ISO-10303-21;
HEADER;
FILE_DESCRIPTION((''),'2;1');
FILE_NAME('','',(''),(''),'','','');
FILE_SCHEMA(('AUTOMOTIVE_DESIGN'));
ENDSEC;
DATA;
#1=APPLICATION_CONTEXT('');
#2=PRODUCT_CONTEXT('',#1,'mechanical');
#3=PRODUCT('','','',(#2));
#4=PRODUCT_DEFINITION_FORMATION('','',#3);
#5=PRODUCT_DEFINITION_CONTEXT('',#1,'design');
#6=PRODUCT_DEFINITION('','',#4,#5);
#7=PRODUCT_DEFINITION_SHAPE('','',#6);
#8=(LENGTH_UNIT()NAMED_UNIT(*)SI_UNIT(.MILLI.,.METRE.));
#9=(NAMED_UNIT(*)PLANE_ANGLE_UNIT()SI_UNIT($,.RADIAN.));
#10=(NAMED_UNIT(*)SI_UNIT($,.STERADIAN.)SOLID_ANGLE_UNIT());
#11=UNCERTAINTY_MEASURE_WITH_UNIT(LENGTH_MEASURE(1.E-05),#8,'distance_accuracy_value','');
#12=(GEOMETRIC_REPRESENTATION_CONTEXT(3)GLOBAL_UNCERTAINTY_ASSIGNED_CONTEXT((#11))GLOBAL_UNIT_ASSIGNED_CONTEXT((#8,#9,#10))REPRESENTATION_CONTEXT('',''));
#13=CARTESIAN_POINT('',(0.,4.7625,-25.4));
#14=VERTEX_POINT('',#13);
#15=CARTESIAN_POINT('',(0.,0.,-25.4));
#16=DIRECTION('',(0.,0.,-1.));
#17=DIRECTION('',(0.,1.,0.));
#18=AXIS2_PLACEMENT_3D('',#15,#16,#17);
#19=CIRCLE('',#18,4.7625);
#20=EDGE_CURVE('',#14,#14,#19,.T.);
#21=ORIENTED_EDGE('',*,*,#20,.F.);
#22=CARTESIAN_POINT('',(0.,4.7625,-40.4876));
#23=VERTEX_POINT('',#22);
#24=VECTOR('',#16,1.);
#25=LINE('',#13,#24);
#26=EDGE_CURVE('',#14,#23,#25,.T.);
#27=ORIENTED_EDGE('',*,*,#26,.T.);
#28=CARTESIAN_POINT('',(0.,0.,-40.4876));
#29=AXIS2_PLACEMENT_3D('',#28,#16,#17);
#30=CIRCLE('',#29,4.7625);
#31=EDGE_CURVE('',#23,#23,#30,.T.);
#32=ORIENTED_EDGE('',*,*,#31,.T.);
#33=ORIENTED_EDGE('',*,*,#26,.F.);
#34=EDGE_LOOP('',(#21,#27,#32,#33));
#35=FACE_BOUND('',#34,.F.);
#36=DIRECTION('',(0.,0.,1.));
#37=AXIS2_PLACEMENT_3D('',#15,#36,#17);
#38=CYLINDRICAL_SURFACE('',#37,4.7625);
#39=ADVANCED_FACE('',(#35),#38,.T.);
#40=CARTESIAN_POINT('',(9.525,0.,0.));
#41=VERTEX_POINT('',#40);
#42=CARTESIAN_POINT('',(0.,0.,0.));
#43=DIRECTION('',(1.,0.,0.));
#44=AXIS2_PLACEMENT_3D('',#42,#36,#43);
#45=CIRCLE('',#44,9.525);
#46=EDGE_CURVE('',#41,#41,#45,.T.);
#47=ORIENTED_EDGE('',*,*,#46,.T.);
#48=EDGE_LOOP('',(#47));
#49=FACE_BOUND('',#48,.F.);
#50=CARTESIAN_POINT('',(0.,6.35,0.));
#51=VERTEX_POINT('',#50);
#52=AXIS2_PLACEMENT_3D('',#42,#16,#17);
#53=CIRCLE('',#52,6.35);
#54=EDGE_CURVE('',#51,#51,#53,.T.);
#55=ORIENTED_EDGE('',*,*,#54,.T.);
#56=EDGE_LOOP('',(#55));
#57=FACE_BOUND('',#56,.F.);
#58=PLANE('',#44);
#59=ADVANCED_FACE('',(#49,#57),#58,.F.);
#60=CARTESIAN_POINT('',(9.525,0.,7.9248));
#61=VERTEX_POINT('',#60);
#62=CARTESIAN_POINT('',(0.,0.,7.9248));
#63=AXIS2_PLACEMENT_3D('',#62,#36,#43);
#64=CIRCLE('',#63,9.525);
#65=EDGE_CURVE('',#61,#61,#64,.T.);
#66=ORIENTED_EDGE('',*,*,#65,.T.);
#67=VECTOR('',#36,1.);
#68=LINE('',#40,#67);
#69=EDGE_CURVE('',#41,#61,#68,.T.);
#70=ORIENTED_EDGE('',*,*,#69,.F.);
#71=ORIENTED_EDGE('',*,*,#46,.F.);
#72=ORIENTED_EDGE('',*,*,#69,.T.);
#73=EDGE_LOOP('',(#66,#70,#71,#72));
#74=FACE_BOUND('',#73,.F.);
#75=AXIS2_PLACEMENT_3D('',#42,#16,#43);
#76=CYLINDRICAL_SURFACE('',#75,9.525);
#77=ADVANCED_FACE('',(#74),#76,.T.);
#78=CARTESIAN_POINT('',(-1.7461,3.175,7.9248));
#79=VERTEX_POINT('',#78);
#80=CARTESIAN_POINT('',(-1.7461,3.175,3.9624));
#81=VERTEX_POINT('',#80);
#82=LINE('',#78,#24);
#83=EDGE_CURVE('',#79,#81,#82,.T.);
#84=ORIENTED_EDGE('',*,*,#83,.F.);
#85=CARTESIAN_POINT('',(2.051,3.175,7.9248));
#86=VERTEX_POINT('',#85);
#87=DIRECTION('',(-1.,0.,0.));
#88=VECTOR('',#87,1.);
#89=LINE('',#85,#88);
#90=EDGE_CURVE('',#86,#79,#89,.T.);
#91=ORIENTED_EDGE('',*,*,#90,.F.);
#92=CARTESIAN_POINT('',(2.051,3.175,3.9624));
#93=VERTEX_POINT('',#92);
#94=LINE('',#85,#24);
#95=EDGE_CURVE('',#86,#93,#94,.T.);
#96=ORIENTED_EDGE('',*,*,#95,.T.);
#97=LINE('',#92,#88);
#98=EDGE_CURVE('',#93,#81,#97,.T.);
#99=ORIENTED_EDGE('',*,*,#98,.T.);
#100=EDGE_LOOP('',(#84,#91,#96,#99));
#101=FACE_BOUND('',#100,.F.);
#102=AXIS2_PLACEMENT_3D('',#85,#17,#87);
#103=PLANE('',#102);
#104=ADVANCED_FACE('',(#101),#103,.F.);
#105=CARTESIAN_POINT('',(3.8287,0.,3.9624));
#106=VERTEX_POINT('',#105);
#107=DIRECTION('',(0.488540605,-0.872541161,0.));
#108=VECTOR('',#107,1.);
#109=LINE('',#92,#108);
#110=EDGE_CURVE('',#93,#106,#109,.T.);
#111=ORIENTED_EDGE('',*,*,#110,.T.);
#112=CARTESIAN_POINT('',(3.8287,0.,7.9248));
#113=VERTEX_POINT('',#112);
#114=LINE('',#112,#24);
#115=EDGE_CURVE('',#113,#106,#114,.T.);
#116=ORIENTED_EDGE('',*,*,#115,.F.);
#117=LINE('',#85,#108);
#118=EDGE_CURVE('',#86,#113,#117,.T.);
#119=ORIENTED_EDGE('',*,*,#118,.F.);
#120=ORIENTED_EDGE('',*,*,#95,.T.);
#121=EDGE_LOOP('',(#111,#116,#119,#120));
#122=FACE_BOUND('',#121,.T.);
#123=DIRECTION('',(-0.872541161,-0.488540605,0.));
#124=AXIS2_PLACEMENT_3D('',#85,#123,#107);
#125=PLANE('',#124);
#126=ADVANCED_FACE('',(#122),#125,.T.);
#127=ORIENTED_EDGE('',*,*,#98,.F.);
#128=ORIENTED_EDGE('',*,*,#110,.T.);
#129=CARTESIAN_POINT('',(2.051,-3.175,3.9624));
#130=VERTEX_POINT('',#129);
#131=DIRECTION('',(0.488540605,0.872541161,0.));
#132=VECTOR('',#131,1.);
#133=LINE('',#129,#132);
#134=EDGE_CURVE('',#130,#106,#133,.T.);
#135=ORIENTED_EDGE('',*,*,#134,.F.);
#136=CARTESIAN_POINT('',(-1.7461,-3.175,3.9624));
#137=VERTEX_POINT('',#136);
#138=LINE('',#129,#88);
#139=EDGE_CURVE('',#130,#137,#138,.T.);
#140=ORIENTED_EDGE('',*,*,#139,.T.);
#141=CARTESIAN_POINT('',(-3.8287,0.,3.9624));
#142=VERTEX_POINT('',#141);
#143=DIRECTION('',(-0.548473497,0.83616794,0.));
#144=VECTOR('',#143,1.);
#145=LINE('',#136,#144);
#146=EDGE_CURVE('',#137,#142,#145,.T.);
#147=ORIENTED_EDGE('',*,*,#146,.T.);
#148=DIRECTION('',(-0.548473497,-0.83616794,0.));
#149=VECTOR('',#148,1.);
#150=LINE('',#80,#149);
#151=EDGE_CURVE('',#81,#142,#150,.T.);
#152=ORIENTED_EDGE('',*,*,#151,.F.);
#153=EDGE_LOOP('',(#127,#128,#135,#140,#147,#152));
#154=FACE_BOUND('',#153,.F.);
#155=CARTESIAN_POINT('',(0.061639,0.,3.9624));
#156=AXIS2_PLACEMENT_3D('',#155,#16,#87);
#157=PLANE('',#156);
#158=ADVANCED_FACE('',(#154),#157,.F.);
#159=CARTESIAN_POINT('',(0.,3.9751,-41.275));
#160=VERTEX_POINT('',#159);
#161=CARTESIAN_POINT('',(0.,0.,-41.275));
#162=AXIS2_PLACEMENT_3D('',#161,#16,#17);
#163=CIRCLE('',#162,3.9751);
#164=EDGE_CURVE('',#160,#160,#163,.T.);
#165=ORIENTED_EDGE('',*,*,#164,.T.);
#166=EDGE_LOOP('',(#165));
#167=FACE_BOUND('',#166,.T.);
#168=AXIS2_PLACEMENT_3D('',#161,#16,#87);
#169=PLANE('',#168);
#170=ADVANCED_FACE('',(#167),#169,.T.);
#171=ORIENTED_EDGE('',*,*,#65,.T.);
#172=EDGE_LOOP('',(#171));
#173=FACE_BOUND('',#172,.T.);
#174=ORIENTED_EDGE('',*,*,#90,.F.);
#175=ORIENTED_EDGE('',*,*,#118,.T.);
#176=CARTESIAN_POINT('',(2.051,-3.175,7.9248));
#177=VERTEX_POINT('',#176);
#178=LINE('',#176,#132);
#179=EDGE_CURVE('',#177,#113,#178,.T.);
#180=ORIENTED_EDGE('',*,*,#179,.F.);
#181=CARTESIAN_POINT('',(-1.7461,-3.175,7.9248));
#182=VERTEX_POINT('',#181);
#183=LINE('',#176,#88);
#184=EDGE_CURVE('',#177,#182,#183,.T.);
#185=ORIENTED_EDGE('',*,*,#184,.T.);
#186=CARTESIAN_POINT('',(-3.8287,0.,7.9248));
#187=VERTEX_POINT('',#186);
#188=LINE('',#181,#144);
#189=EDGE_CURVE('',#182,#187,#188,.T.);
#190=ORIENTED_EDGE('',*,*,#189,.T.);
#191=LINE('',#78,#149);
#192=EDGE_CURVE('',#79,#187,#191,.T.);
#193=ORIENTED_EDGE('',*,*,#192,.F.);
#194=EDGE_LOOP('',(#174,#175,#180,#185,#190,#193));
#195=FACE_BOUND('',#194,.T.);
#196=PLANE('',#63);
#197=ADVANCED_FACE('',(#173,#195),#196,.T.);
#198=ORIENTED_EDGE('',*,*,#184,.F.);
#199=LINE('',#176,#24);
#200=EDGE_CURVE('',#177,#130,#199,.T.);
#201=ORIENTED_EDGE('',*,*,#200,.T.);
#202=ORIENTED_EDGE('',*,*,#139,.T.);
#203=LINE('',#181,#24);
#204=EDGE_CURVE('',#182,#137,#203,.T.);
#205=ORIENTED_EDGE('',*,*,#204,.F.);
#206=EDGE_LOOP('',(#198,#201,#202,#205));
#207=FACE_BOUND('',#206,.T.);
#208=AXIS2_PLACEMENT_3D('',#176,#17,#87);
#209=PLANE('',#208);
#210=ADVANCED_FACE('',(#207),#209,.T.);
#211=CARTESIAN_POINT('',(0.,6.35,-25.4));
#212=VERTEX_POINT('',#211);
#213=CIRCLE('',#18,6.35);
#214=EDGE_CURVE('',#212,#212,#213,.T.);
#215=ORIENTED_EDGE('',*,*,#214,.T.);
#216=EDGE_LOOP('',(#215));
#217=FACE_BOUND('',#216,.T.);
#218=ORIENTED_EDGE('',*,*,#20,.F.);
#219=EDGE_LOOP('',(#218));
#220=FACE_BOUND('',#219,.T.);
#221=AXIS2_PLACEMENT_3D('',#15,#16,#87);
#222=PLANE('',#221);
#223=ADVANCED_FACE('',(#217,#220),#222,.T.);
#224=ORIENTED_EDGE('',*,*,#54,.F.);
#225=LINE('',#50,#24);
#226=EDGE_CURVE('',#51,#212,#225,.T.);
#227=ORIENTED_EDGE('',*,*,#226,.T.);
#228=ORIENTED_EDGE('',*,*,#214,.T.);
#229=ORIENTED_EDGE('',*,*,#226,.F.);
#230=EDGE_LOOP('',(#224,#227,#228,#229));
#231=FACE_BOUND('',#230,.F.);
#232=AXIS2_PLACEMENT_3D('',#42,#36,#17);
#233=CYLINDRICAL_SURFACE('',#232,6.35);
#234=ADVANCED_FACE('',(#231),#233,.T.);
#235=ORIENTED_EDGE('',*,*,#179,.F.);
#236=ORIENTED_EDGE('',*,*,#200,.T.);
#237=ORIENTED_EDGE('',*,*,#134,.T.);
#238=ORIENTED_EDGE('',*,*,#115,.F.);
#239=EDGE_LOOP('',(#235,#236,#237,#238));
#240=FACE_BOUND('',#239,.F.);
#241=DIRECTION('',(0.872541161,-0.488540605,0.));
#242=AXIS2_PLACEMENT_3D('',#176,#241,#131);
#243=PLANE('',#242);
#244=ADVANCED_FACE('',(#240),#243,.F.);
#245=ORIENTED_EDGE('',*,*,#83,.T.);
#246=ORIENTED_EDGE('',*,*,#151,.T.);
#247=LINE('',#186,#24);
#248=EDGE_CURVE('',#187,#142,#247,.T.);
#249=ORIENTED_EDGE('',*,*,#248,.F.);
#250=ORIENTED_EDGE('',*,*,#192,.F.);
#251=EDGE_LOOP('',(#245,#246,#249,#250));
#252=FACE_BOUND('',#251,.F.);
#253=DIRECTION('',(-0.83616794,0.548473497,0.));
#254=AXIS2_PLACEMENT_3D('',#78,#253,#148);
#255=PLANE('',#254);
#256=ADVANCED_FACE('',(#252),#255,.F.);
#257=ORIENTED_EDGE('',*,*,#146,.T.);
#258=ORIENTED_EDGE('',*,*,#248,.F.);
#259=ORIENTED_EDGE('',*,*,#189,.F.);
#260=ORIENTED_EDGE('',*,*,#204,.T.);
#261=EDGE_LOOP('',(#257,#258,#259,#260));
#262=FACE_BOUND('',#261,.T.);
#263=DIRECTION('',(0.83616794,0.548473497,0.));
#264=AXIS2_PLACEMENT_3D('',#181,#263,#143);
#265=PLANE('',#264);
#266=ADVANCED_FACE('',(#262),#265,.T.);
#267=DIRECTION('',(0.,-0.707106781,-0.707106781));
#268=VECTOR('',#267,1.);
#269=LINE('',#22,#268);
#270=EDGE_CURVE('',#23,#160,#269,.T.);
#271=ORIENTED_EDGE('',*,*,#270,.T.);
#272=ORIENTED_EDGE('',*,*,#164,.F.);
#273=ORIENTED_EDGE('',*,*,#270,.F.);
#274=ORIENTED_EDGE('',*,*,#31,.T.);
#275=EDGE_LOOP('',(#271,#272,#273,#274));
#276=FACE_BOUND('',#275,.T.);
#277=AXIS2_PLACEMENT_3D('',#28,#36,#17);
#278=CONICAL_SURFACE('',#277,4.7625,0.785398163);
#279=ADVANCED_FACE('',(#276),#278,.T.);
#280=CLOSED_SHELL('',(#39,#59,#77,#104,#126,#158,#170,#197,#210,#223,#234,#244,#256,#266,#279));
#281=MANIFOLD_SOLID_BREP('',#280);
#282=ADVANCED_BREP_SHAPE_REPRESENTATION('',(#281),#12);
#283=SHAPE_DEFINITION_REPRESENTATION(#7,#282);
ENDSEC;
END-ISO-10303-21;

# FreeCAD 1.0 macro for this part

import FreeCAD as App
import Part
import Sketcher

V = App.Vector
Q = App.Units.Quantity


def edges_at(feature, points):
    """Names of the edges that pass closest to the given points."""
    edges = feature.Shape.Edges
    near = lambda p: min(range(len(edges)), key=lambda i: edges[i].distToShape(Part.Vertex(*p))[0])
    return sorted({f"Edge{near(p) + 1}" for p in points})

doc = App.newDocument("Part")
body = doc.addObject("PartDesign::Body", "Body")

sketch1 = body.newObject("Sketcher::SketchObject", "Sketch")
sketch1.AttachmentSupport = (doc.getObject("XY_Plane"), [""])
sketch1.MapMode = "FlatFace"
sketch1.addGeometry(Part.Circle(V(0, 0, 0), V(0, 0, 1), 10), False)
sketch1.addConstraint([
    Sketcher.Constraint("Coincident", 0, 3, -1, 1),
    Sketcher.Constraint("Diameter", 0, Q("0.75 in")),
])
pad1 = body.newObject("PartDesign::Pad", "Pad")
pad1.Profile = sketch1
pad1.Length = Q("0.312 in")

sketch2 = body.newObject("Sketcher::SketchObject", "Sketch001")
sketch2.AttachmentSupport = (doc.getObject("XY_Plane"), [""])
sketch2.MapMode = "FlatFace"
sketch2.addGeometry(Part.Circle(V(0, 0, 0), V(0, 0, 1), 6), False)
sketch2.addConstraint([
    Sketcher.Constraint("Coincident", 0, 3, -1, 1),
    Sketcher.Constraint("Diameter", 0, Q("0.5 in")),
])
pad2 = body.newObject("PartDesign::Pad", "Pad001")
pad2.Profile = sketch2
pad2.Length = Q("1 in")
pad2.Reversed = True

sketch3 = body.newObject("Sketcher::SketchObject", "Sketch002")
sketch3.AttachmentSupport = (doc.getObject("XY_Plane"), [""])
sketch3.MapMode = "FlatFace"
sketch3.AttachmentOffset = App.Placement(V(0, 0, -1 * 25.4), App.Rotation())
sketch3.addGeometry(Part.Circle(V(0, 0, 0), V(0, 0, 1), 4.8), False)
sketch3.addConstraint([
    Sketcher.Constraint("Coincident", 0, 3, -1, 1),
    Sketcher.Constraint("Diameter", 0, Q("0.375 in")),
])
pad3 = body.newObject("PartDesign::Pad", "Pad002")
pad3.Profile = sketch3
pad3.Length = Q("0.625 in")
pad3.Reversed = True

sketch4 = body.newObject("Sketcher::SketchObject", "Sketch003")
sketch4.AttachmentSupport = (doc.getObject("XY_Plane"), [""])
sketch4.MapMode = "FlatFace"
sketch4.AttachmentOffset = App.Placement(V(0, 0, 0.312 * 25.4), App.Rotation())
sketch4.addGeometry([
    Part.LineSegment(V(-3.8, 0, 0), V(-1.7, -3.2, 0)),
    Part.LineSegment(V(-1.7, -3.2, 0), V(2.1, -3.2, 0)),
    Part.LineSegment(V(2.1, -3.2, 0), V(3.8, 0, 0)),
    Part.LineSegment(V(3.8, 0, 0), V(2.1, 3.2, 0)),
    Part.LineSegment(V(2.1, 3.2, 0), V(-1.7, 3.2, 0)),
    Part.LineSegment(V(-1.7, 3.2, 0), V(-3.8, 0, 0)),
], False)
sketch4.addConstraint([
    Sketcher.Constraint("Coincident", 0, 2, 1, 1),
    Sketcher.Constraint("Coincident", 1, 2, 2, 1),
    Sketcher.Constraint("Coincident", 2, 2, 3, 1),
    Sketcher.Constraint("Coincident", 3, 2, 4, 1),
    Sketcher.Constraint("Coincident", 4, 2, 5, 1),
    Sketcher.Constraint("Coincident", 5, 2, 0, 1),
    Sketcher.Constraint("Horizontal", 1),
    Sketcher.Constraint("Horizontal", 4),
    Sketcher.Constraint("Symmetric", 2, 2, 5, 2, -1, 1),
    Sketcher.Constraint("Symmetric", 1, 2, 3, 2, -1),
    Sketcher.Constraint("PointOnObject", 2, 2, -1),
    Sketcher.Constraint("Vertical", 0, 2, 4, 2),
    Sketcher.Constraint("DistanceX", 1, 2, 2, 2, Q("0.07 in")),
    Sketcher.Constraint("DistanceY", 1, 2, 3, 2, Q("0.25 in")),
    Sketcher.Constraint("DistanceX", 1, 1, 1, 2, Q("0.1495 in")),
    Sketcher.Constraint("DistanceX", 5, 2, 0, 2, Q("0.082 in")),
])
pocket1 = body.newObject("PartDesign::Pocket", "Pocket")
pocket1.Profile = sketch4
pocket1.Length = Q("0.156 in")
doc.recompute()

chamfer = body.newObject("PartDesign::Chamfer", "Chamfer")
chamfer.Base = (pocket1, edges_at(pocket1, [(0, -4.763, -41.275)]))
chamfer.Size = Q("0.031 in")

doc.recompute()
